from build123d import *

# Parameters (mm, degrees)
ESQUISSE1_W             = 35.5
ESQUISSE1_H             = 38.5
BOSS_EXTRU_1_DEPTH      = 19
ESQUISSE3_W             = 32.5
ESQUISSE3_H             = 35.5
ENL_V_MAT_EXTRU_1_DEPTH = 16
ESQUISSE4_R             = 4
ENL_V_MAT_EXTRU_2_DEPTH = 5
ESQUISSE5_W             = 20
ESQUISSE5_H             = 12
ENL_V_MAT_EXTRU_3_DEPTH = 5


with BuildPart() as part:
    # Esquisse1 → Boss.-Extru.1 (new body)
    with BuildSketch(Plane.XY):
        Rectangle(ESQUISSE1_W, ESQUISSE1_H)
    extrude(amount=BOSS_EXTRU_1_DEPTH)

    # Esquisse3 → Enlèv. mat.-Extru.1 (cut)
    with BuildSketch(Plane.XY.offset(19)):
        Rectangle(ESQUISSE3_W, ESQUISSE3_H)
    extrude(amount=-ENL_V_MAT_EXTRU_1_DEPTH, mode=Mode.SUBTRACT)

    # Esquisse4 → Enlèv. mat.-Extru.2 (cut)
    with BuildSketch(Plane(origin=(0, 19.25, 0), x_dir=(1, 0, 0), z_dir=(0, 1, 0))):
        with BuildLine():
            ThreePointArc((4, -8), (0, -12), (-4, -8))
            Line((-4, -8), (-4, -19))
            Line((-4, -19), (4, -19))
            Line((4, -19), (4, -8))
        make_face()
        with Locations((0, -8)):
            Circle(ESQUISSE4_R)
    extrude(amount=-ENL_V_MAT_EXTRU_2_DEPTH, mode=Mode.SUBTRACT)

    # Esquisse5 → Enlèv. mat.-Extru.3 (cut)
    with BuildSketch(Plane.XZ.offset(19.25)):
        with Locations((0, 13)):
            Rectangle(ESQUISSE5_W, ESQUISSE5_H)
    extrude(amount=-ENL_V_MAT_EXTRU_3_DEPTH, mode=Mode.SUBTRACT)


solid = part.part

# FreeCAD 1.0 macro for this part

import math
import FreeCAD as App
import Part
import Sketcher
from FreeCAD import Vector

doc = App.newDocument("Part")
body = doc.addObject("PartDesign::Body", "Body")

# Sketch on XY plane
sketch1 = body.newObject("Sketcher::SketchObject", "Sketch")
sketch1.AttachmentSupport = (doc.getObject("XY_Plane"), [""])
sketch1.MapMode = "FlatFace"
sketch1.addGeometry([
    Part.LineSegment(Vector(-18, 19, 0), Vector(-18, -19, 0)),
    Part.LineSegment(Vector(-18, -19, 0), Vector(18, -19, 0)),
    Part.LineSegment(Vector(18, -19, 0), Vector(18, 19, 0)),
    Part.LineSegment(Vector(18, 19, 0), Vector(-18, 19, 0)),
], False)
sketch1.addConstraint([
    Sketcher.Constraint("Coincident", 0, 2, 1, 1),
    Sketcher.Constraint("Coincident", 1, 2, 2, 1),
    Sketcher.Constraint("Coincident", 2, 2, 3, 1),
    Sketcher.Constraint("Coincident", 3, 2, 0, 1),
    Sketcher.Constraint("Vertical", 0),
    Sketcher.Constraint("Horizontal", 1),
    Sketcher.Constraint("Vertical", 2),
    Sketcher.Constraint("Horizontal", 3),
    Sketcher.Constraint("Symmetric", 0, 2, 2, 2, -1, 1),
    Sketcher.Constraint("DistanceX", 1, 1, 1, 2, 35.5),
    Sketcher.Constraint("DistanceY", 0, 2, 0, 1, 38.5),
])
pad1 = body.newObject("PartDesign::Pad", "Pad")
pad1.Profile = sketch1
pad1.Length = 19

# Sketch on XY plane
sketch2 = body.newObject("Sketcher::SketchObject", "Sketch001")
sketch2.AttachmentSupport = (doc.getObject("XY_Plane"), [""])
sketch2.MapMode = "FlatFace"
sketch2.AttachmentOffset = App.Placement(Vector(0, 0, 19), App.Rotation())
sketch2.addGeometry([
    Part.LineSegment(Vector(-16, 18, 0), Vector(-16, -18, 0)),
    Part.LineSegment(Vector(-16, -18, 0), Vector(16, -18, 0)),
    Part.LineSegment(Vector(16, -18, 0), Vector(16, 18, 0)),
    Part.LineSegment(Vector(16, 18, 0), Vector(-16, 18, 0)),
], False)
sketch2.addConstraint([
    Sketcher.Constraint("Coincident", 0, 2, 1, 1),
    Sketcher.Constraint("Coincident", 1, 2, 2, 1),
    Sketcher.Constraint("Coincident", 2, 2, 3, 1),
    Sketcher.Constraint("Coincident", 3, 2, 0, 1),
    Sketcher.Constraint("Vertical", 0),
    Sketcher.Constraint("Horizontal", 1),
    Sketcher.Constraint("Vertical", 2),
    Sketcher.Constraint("Horizontal", 3),
    Sketcher.Constraint("Symmetric", 0, 2, 2, 2, -1, 1),
    Sketcher.Constraint("DistanceX", 1, 1, 1, 2, 32.5),
    Sketcher.Constraint("DistanceY", 0, 2, 0, 1, 35.5),
])
pocket1 = body.newObject("PartDesign::Pocket", "Pocket")
pocket1.Profile = sketch2
pocket1.Length = 16

# Sketch on XZ plane
sketch3 = body.newObject("Sketcher::SketchObject", "Sketch002")
sketch3.AttachmentSupport = (doc.getObject("XZ_Plane"), [""])
sketch3.MapMode = "FlatFace"
sketch3.AttachmentOffset = App.Placement(Vector(0, 0, -19.25), App.Rotation())
sketch3.addGeometry([
    Part.LineSegment(Vector(-4, 8, 0), Vector(-4, 19, 0)),
    Part.LineSegment(Vector(-4, 19, 0), Vector(4, 19, 0)),
    Part.LineSegment(Vector(4, 19, 0), Vector(4, 8, 0)),
    Part.ArcOfCircle(Part.Circle(Vector(0, 8, 0), Vector(0, 0, 1), 4), math.radians(180), math.radians(360)),
], False)
sketch3.addConstraint([
    Sketcher.Constraint("Coincident", 0, 2, 1, 1),
    Sketcher.Constraint("Coincident", 1, 2, 2, 1),
    Sketcher.Constraint("Tangent", 2, 2, 3, 2),
    Sketcher.Constraint("Tangent", 3, 1, 0, 1),
    Sketcher.Constraint("Vertical", 0),
    Sketcher.Constraint("Horizontal", 1),
    Sketcher.Constraint("Vertical", 2),
    Sketcher.Constraint("PointOnObject", 3, 3, -2),
    Sketcher.Constraint("Radius", 3, 4.0),
    Sketcher.Constraint("DistanceY", 0, 1, 0, 2, 11.0),
    Sketcher.Constraint("DistanceY", -1, 1, 3, 3, 8.0),
])
pocket2 = body.newObject("PartDesign::Pocket", "Pocket001")
pocket2.Profile = sketch3
pocket2.Length = 5
pocket2.Reversed = True

# Sketch on XZ plane
sketch4 = body.newObject("Sketcher::SketchObject", "Sketch003")
sketch4.AttachmentSupport = (doc.getObject("XZ_Plane"), [""])
sketch4.MapMode = "FlatFace"
sketch4.AttachmentOffset = App.Placement(Vector(0, 0, 19.25), App.Rotation())
sketch4.addGeometry([
    Part.LineSegment(Vector(-10, 19, 0), Vector(-10, 7, 0)),
    Part.LineSegment(Vector(-10, 7, 0), Vector(10, 7, 0)),
    Part.LineSegment(Vector(10, 7, 0), Vector(10, 19, 0)),
    Part.LineSegment(Vector(10, 19, 0), Vector(-10, 19, 0)),
], False)
sketch4.addConstraint([
    Sketcher.Constraint("Coincident", 0, 2, 1, 1),
    Sketcher.Constraint("Coincident", 1, 2, 2, 1),
    Sketcher.Constraint("Coincident", 2, 2, 3, 1),
    Sketcher.Constraint("Coincident", 3, 2, 0, 1),
    Sketcher.Constraint("Vertical", 0),
    Sketcher.Constraint("Horizontal", 1),
    Sketcher.Constraint("Vertical", 2),
    Sketcher.Constraint("Horizontal", 3),
    Sketcher.Constraint("DistanceX", 1, 1, 1, 2, 20.0),
    Sketcher.Constraint("DistanceY", 0, 2, 0, 1, 12.0),
    Sketcher.Constraint("DistanceX", 0, 2, -1, 1, 10.0),
    Sketcher.Constraint("DistanceY", -1, 1, 0, 2, 7.0),
])
pocket3 = body.newObject("PartDesign::Pocket", "Pocket002")
pocket3.Profile = sketch4
pocket3.Length = 5

doc.recompute()
